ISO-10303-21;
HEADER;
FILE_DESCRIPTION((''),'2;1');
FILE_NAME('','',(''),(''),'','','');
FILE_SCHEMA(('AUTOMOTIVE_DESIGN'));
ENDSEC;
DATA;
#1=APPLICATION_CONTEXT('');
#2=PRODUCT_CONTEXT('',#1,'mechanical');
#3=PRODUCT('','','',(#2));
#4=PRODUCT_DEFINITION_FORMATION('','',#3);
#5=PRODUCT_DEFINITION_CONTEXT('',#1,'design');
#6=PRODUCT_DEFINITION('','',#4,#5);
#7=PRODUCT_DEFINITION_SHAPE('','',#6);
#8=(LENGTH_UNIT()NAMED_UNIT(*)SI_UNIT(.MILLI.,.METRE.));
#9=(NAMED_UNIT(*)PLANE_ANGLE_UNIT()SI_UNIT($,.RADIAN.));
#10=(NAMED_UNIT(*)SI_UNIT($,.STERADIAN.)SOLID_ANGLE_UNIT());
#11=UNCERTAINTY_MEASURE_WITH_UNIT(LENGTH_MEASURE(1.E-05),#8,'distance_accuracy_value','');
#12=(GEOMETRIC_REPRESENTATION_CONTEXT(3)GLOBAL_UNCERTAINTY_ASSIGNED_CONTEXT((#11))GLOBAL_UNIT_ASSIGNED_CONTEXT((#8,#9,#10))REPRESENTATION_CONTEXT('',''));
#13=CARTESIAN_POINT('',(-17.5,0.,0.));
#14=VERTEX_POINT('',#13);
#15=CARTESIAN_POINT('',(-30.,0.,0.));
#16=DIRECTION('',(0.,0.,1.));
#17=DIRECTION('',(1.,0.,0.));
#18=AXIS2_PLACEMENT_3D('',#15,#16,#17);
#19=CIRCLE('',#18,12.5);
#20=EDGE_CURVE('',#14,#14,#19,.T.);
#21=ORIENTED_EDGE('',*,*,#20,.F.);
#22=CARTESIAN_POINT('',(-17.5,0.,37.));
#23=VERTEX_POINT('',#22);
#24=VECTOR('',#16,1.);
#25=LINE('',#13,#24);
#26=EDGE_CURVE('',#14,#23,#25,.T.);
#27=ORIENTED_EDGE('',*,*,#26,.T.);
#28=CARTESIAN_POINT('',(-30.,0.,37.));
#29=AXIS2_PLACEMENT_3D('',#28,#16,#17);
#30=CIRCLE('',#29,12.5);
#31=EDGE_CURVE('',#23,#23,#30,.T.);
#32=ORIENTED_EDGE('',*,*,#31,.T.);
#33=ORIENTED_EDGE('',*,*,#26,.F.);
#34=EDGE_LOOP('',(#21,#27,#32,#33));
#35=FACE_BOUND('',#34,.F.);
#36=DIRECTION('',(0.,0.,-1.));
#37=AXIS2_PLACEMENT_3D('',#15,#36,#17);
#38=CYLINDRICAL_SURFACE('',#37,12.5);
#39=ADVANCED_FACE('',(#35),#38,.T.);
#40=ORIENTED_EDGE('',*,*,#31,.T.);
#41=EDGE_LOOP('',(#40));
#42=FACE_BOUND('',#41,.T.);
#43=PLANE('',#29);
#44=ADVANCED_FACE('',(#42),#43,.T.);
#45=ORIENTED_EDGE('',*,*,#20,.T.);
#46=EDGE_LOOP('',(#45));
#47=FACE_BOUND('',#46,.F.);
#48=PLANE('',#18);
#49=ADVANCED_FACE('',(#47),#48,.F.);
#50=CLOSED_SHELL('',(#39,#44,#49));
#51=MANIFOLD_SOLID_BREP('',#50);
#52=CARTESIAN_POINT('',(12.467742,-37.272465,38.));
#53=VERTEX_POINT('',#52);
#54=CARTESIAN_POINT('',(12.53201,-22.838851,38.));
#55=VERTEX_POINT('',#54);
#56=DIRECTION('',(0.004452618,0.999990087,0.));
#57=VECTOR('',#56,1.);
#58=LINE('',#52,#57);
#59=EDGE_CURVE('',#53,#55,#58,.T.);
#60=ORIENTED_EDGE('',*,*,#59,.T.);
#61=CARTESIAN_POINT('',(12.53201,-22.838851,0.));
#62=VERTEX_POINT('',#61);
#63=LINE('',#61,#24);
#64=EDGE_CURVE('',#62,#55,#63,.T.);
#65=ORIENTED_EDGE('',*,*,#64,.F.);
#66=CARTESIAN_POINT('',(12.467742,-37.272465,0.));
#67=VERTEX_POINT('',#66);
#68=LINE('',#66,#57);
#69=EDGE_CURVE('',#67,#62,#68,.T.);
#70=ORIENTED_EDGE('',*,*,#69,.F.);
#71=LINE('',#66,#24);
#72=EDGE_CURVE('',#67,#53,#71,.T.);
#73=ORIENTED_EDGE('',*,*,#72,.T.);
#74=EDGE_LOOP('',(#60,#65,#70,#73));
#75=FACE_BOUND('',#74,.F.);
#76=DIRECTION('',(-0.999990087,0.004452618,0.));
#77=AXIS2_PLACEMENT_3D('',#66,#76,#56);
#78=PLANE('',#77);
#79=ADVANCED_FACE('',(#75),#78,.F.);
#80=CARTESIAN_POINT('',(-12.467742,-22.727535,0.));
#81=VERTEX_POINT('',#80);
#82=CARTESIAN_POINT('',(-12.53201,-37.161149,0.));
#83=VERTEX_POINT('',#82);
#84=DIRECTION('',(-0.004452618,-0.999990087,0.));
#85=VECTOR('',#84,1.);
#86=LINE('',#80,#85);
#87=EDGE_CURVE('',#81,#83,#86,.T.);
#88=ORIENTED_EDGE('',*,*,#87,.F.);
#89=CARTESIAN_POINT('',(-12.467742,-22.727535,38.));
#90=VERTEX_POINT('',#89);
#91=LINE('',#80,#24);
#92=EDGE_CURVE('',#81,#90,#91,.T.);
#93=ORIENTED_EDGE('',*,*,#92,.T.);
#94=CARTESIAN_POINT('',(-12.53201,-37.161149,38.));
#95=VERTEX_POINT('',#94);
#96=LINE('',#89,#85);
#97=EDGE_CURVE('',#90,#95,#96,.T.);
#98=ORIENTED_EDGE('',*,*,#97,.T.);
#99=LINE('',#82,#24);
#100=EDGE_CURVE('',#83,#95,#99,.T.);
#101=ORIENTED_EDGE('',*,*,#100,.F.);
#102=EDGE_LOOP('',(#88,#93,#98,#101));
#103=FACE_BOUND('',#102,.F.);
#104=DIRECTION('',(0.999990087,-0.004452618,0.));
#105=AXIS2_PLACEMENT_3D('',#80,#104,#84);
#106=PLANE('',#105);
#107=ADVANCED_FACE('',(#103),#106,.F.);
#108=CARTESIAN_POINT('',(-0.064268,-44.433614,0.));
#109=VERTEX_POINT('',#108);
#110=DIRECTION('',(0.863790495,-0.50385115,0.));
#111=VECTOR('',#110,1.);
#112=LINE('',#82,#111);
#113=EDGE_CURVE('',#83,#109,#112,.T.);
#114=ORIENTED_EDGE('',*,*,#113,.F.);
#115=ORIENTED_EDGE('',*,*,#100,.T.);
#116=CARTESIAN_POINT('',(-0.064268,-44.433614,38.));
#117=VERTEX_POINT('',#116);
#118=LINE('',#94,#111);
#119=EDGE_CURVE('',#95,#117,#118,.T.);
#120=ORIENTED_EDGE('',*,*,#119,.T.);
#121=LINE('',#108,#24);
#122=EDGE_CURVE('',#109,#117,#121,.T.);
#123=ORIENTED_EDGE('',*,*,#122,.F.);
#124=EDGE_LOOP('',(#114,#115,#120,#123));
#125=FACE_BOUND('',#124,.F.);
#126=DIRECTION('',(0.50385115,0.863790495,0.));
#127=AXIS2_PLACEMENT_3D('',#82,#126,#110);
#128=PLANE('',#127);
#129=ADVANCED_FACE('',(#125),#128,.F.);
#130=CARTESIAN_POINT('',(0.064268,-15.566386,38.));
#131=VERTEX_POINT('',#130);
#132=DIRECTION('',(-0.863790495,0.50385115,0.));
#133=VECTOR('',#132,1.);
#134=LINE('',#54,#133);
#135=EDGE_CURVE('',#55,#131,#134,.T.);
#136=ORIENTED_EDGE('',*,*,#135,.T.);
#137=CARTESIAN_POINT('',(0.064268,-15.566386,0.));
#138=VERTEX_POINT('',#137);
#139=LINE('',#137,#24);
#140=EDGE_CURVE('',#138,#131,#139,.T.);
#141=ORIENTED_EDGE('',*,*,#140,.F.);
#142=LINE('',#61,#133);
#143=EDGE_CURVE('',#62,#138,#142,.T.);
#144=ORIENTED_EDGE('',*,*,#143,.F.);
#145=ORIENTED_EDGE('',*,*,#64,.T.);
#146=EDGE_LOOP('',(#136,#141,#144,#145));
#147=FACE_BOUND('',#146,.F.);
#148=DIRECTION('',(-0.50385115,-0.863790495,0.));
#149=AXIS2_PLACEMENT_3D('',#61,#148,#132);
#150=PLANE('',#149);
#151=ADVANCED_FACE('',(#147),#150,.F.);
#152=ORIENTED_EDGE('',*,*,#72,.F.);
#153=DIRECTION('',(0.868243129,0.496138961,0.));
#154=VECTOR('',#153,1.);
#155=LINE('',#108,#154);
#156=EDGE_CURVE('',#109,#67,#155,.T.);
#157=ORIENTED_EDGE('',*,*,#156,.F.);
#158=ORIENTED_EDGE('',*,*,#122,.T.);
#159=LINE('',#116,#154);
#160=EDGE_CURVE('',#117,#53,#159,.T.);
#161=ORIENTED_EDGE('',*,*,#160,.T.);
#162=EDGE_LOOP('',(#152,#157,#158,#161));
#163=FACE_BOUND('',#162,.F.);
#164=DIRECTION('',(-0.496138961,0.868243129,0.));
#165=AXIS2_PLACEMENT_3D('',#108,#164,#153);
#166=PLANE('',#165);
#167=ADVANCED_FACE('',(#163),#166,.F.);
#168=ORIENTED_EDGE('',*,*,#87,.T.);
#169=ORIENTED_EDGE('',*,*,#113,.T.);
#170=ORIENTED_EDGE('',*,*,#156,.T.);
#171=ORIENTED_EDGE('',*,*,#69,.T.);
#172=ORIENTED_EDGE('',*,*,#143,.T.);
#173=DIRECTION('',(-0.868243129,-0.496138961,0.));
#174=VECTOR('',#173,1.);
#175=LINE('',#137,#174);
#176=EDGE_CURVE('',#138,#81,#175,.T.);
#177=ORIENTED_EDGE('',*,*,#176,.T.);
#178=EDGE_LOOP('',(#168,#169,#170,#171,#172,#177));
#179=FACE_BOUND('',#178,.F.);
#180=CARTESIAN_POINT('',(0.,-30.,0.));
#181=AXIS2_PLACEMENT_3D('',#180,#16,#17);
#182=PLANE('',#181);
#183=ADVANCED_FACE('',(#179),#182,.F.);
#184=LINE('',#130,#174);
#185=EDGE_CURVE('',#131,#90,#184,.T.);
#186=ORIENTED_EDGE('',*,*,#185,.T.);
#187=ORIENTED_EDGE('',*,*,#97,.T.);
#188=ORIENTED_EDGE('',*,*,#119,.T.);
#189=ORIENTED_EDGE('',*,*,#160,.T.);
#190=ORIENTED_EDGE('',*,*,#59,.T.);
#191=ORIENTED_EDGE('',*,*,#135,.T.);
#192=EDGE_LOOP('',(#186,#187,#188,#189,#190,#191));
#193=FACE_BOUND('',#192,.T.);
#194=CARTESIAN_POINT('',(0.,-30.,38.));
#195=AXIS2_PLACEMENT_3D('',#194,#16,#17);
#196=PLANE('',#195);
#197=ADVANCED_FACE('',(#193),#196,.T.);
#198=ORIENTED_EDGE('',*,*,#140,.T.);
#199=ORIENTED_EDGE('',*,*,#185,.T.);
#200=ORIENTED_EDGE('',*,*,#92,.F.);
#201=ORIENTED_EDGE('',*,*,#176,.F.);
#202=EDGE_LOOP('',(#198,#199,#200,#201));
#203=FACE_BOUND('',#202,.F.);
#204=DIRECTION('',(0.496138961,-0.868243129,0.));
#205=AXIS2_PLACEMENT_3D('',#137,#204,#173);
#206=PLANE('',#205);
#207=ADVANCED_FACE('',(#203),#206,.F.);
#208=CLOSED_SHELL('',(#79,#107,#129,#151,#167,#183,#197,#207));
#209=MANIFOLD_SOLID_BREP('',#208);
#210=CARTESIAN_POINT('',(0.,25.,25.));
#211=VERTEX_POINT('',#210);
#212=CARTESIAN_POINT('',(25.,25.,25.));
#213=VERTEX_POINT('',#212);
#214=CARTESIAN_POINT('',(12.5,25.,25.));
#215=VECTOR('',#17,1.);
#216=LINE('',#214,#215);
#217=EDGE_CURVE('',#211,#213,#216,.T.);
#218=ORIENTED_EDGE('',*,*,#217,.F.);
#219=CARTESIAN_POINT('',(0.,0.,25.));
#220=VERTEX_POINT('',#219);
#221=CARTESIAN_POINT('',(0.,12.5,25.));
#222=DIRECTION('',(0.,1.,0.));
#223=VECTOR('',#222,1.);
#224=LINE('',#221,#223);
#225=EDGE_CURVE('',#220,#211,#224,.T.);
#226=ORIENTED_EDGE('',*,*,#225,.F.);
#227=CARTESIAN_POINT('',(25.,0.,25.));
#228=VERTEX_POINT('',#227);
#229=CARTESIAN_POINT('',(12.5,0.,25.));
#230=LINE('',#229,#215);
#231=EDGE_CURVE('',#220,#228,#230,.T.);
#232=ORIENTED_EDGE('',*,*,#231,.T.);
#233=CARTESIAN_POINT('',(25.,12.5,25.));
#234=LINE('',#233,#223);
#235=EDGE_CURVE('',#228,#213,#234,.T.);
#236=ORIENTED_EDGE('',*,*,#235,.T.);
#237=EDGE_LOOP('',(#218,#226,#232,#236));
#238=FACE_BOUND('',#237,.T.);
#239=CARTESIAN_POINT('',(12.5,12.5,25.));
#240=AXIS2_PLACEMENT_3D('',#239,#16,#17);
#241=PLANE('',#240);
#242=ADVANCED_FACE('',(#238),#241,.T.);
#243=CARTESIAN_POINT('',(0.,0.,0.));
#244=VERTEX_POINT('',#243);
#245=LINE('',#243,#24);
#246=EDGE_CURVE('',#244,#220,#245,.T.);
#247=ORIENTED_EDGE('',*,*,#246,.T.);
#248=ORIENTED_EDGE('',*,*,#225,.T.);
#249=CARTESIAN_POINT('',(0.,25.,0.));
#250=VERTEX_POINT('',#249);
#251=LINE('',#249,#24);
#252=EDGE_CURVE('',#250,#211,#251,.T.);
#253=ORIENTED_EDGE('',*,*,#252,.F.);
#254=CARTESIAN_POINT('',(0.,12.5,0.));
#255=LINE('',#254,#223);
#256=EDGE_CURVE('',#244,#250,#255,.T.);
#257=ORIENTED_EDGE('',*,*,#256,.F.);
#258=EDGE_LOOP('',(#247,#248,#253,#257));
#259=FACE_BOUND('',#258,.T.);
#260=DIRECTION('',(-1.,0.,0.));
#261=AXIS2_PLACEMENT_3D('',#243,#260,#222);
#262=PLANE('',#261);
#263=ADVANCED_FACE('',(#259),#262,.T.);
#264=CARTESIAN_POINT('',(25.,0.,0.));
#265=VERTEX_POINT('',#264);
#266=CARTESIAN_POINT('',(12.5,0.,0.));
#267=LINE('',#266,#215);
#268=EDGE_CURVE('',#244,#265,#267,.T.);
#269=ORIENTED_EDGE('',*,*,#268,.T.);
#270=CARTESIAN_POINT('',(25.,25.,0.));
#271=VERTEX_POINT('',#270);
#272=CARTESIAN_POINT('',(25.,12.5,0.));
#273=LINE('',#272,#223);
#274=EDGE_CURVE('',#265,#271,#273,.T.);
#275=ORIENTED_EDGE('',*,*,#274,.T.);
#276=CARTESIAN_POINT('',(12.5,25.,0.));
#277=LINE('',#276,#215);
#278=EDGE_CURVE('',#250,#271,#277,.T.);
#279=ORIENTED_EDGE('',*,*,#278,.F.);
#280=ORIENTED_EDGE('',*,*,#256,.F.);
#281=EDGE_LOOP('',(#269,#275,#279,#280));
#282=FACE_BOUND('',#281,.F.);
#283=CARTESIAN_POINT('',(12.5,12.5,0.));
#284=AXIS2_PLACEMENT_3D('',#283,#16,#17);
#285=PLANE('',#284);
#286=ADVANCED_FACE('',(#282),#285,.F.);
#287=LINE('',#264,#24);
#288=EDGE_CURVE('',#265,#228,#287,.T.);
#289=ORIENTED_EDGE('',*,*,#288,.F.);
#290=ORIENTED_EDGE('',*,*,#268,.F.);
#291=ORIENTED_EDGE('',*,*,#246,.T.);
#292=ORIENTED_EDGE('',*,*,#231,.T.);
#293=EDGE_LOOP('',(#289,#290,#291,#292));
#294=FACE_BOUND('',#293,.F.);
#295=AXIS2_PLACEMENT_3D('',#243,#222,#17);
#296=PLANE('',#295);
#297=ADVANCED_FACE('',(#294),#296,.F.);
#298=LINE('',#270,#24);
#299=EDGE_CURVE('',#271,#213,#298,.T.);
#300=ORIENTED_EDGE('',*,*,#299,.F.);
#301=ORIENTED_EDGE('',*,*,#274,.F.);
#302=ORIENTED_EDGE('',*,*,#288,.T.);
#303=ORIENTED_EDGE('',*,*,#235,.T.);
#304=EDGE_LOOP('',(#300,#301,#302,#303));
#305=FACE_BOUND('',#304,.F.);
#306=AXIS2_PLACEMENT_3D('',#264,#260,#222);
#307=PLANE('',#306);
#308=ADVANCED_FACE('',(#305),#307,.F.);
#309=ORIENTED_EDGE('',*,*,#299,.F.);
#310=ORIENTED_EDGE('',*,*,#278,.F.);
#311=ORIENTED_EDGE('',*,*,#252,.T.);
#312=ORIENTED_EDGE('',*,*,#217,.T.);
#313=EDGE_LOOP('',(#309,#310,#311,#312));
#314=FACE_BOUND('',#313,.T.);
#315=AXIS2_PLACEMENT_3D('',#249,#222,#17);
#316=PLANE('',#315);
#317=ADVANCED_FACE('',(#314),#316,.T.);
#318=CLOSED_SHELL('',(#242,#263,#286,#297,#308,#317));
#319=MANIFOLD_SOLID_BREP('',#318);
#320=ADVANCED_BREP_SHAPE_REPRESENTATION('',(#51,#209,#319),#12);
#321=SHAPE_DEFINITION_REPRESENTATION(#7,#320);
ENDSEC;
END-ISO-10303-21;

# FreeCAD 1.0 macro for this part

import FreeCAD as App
import Part
import Sketcher
from FreeCAD import Vector
Q = App.Units.Quantity


def add_polygon(sketch, points):
    """Adds a closed chain of lines whose ends are joined by coincident constraints."""
    first, n = sketch.GeometryCount, len(points)
    for a, b in zip(points, points[1:] + points[:1]):
        sketch.addGeometry(Part.LineSegment(App.Vector(*a, 0), App.Vector(*b, 0)), False)
    for i in range(n):
        sketch.addConstraint(Sketcher.Constraint("Coincident", first + i, 2, first + (i + 1) % n, 1))

doc = App.newDocument("Part")
body = doc.addObject("PartDesign::Body", "Body")

sketch1 = body.newObject("Sketcher::SketchObject", "Sketch")
sketch1.AttachmentSupport = (doc.getObject("XY_Plane"), [""])
sketch1.MapMode = "FlatFace"
add_polygon(sketch1, [(0, 25), (0, 0), (25, 0), (25, 25)])
sketch1.addConstraint([
    Sketcher.Constraint("Vertical", 0),
    Sketcher.Constraint("Horizontal", 1),
    Sketcher.Constraint("Vertical", 2),
    Sketcher.Constraint("Horizontal", 3),
    Sketcher.Constraint("Coincident", 0, 2, -1, 1),
    Sketcher.Constraint("Equal", 3, 0),
    Sketcher.Constraint("DistanceX", 1, 1, 1, 2, Q("25 mm")),
])
pad1 = body.newObject("PartDesign::Pad", "Pad")
pad1.Profile = sketch1
pad1.Length = 25
body2 = doc.addObject("PartDesign::Body", "Body001")

sketch2 = body2.newObject("Sketcher::SketchObject", "Sketch001")
sketch2.AttachmentSupport = (doc.getObject("XY_Plane001"), [""])
sketch2.MapMode = "FlatFace"
sketch2.addGeometry(Part.Circle(Vector(-30, 0, 0), Vector(0, 0, 1), 12.5), False)
sketch2.addConstraint([
    Sketcher.Constraint("PointOnObject", 0, 3, -1),
    Sketcher.Constraint("Diameter", 0, Q("25 mm")),
    Sketcher.Constraint("DistanceX", 0, 3, -1, 1, Q("30 mm")),
])
pad2 = body2.newObject("PartDesign::Pad", "Pad001")
pad2.Profile = sketch2
pad2.Length = 37
body3 = doc.addObject("PartDesign::Body", "Body002")

sketch3 = body3.newObject("Sketcher::SketchObject", "Sketch002")
sketch3.AttachmentSupport = (doc.getObject("XY_Plane002"), [""])
sketch3.MapMode = "FlatFace"
add_polygon(sketch3, [(0.064268, -15.566386), (-12.467742, -22.727535), (-12.53201, -37.161149), (-0.064268, -44.433614), (12.467742, -37.272465), (12.53201, -22.838851)])
sketch3.addConstraint([
    Sketcher.Constraint("Parallel", 0, 3),
    Sketcher.Constraint("Parallel", 1, 4),
    Sketcher.Constraint("Parallel", 2, 5),
    Sketcher.Constraint("Equal", 0, 1),
    Sketcher.Constraint("Equal", 1, 2),
    Sketcher.Constraint("Equal", 2, 3),
    Sketcher.Constraint("DistanceY", 1, 2, 4, 2, Q("14.322298 mm")),
    Sketcher.Constraint("DistanceX", 1, 2, -1, 1, Q("12.53201 mm")),
    Sketcher.Constraint("DistanceY", 1, 2, -1, 1, Q("37.161149 mm")),
    Sketcher.Constraint("DistanceX", 2, 2, -1, 1, Q("0.064268 mm")),
    Sketcher.Constraint("DistanceX", -1, 1, 4, 2, Q("12.53201 mm")),
    Sketcher.Constraint("DistanceX", 1, 2, 0, 2, Q("0.064268 mm")),
])
pad3 = body3.newObject("PartDesign::Pad", "Pad002")
pad3.Profile = sketch3
pad3.Length = 38

doc.recompute()
